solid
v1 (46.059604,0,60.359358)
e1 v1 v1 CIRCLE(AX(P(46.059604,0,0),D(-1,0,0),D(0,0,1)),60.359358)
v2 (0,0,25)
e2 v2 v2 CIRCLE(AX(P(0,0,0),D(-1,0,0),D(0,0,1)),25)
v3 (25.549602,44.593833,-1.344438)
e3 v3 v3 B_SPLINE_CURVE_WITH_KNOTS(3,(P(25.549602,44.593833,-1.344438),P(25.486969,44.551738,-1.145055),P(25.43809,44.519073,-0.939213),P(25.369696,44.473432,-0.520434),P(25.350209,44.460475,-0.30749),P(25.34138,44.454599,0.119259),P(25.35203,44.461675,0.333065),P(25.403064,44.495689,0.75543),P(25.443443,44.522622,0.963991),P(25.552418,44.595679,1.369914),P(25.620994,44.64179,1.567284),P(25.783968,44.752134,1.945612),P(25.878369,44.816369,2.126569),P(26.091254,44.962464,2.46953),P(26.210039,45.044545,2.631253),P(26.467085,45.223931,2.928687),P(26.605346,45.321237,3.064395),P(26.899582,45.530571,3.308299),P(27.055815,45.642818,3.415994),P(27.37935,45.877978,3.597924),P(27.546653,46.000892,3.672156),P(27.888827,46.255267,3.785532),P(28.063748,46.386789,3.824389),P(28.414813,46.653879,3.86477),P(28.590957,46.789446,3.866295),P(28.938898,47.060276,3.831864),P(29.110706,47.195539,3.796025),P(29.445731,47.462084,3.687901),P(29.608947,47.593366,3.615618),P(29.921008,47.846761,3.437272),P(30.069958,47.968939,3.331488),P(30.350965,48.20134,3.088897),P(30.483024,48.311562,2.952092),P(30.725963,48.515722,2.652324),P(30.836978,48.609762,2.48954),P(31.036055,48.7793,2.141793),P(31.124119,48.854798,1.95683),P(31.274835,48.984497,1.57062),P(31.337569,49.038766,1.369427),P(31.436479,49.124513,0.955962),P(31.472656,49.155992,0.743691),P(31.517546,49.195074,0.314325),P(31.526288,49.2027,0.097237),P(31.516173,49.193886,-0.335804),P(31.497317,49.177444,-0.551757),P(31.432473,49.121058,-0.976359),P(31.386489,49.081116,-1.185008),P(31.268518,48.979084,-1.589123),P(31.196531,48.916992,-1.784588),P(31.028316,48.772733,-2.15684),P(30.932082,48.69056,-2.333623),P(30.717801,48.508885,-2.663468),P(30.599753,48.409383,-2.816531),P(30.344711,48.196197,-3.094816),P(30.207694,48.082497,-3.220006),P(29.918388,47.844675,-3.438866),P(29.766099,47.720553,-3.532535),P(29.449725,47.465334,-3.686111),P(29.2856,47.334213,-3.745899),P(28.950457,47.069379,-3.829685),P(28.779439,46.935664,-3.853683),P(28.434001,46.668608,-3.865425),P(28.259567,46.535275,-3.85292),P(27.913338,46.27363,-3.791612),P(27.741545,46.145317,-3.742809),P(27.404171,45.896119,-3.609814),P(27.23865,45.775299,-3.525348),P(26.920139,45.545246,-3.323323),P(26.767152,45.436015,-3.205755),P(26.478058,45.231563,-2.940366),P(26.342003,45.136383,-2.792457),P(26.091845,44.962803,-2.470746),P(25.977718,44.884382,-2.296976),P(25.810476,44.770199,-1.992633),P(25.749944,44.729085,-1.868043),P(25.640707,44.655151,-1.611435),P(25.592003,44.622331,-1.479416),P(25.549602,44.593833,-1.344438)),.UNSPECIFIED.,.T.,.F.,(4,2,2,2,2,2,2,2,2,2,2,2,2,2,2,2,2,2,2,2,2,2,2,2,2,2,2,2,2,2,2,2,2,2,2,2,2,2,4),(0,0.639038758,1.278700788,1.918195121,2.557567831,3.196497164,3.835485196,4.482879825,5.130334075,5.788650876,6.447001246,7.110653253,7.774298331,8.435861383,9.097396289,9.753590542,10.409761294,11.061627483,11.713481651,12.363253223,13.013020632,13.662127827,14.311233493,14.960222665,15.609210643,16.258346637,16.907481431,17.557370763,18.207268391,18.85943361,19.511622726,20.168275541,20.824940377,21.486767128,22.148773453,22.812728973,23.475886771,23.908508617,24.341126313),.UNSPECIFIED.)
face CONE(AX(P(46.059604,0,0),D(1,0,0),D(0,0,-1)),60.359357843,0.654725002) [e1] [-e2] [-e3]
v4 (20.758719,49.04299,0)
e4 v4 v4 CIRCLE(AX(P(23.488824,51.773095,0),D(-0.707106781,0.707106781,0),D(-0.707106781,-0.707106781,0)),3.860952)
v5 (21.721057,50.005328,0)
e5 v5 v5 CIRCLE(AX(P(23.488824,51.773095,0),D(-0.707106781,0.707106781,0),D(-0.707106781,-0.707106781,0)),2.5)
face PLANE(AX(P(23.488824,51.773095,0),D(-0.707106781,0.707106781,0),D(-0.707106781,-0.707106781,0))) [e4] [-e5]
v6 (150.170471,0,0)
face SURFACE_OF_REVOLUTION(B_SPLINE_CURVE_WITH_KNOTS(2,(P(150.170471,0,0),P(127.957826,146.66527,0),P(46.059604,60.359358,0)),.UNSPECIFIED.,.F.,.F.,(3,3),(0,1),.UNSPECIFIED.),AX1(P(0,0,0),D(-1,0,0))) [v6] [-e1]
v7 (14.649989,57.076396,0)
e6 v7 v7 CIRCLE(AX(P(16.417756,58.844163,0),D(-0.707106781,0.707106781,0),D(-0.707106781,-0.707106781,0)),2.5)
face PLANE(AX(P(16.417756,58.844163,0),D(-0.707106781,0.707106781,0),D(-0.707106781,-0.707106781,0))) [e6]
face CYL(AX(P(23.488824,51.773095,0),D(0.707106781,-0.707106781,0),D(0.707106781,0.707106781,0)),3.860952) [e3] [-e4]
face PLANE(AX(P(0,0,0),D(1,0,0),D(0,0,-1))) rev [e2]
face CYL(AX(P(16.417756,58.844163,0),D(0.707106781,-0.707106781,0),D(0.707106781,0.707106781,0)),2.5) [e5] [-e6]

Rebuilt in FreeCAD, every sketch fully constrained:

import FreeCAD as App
import Part
import Sketcher
from FreeCAD import Vector

doc = App.newDocument("Part")
body = doc.addObject("PartDesign::Body", "Body")

sketch1 = body.newObject("Sketcher::SketchObject", "Sketch")
sketch1.AttachmentSupport = (doc.getObject("XY_Plane"), [""])
sketch1.MapMode = "FlatFace"
sketch1.addGeometry([
    Part.LineSegment(Vector(0, 25, 0), Vector(0, 0, 0)),
    Part.LineSegment(Vector(0, 0, 0), Vector(150.170471, 0, 0)),
    Part.BSplineCurve([Vector(46.059604, 60.359358, 0), Vector(127.957826, 146.66527, 0), Vector(150.170471, 0, 0)], [3, 3], [0, 1], False, 2, [1, 1, 1], False),
    Part.LineSegment(Vector(46.059604, 60.359358, 0), Vector(0, 25, 0)),
], False)
sketch1.addConstraint([
    Sketcher.Constraint("Block", 2),
    Sketcher.Constraint("Coincident", 0, 2, 1, 1),
    Sketcher.Constraint("Coincident", 1, 2, 2, 2),
    Sketcher.Constraint("Coincident", 2, 1, 3, 1),
    Sketcher.Constraint("Coincident", 3, 2, 0, 1),
    Sketcher.Constraint("Vertical", 0),
    Sketcher.Constraint("Horizontal", 1),
    Sketcher.Constraint("PointOnObject", 3, 2, -2),
    Sketcher.Constraint("DistanceY", 0, 2, 0, 1, 25.0),
])
revolution = body.newObject("PartDesign::Revolution", "Revolution")
revolution.Profile = sketch1
revolution.ReferenceAxis = (sketch1, ["H_Axis"])
revolution.Angle = 360

sketch2 = body.newObject("Sketcher::SketchObject", "Sketch001")
sketch2.Placement = App.Placement(Vector(0, 0, 0), App.Rotation(Vector(0.707106781, 0.707106781, 0), Vector(0, 0, -0.999999999), Vector(-0.707106781, 0.707106781, 0), "ZXY"))
sketch2.addGeometry(Part.Circle(Vector(53.2, 0, 0), Vector(0, 0, 1), 2.5), False)
sketch2.addConstraint([
    Sketcher.Constraint("PointOnObject", 0, 3, -1),
    Sketcher.Constraint("Diameter", 0, 5.0),
    Sketcher.Constraint("DistanceX", -1, 1, 0, 3, 53.218214),
])
pad1 = body.newObject("PartDesign::Pad", "Pad")
pad1.Profile = sketch2
pad1.Length = 30

sketch3 = body.newObject("Sketcher::SketchObject", "Sketch002")
sketch3.Placement = App.Placement(Vector(0, 0, 0), App.Rotation(Vector(0.707106781, 0.707106781, 0), Vector(0, 0, -0.999999999), Vector(-0.707106781, 0.707106781, 0), "ZXY"))
sketch3.addGeometry(Part.Circle(Vector(53.2, 0, 0), Vector(0, 0, 1), 3.9), False)
sketch3.addConstraint([
    Sketcher.Constraint("PointOnObject", 0, 3, -1),
    Sketcher.Constraint("Diameter", 0, 7.721904),
    Sketcher.Constraint("DistanceX", -1, 1, 0, 3, 53.218214),
])
pad2 = body.newObject("PartDesign::Pad", "Pad001")
pad2.Profile = sketch3
pad2.Length = 20

doc.recompute()
